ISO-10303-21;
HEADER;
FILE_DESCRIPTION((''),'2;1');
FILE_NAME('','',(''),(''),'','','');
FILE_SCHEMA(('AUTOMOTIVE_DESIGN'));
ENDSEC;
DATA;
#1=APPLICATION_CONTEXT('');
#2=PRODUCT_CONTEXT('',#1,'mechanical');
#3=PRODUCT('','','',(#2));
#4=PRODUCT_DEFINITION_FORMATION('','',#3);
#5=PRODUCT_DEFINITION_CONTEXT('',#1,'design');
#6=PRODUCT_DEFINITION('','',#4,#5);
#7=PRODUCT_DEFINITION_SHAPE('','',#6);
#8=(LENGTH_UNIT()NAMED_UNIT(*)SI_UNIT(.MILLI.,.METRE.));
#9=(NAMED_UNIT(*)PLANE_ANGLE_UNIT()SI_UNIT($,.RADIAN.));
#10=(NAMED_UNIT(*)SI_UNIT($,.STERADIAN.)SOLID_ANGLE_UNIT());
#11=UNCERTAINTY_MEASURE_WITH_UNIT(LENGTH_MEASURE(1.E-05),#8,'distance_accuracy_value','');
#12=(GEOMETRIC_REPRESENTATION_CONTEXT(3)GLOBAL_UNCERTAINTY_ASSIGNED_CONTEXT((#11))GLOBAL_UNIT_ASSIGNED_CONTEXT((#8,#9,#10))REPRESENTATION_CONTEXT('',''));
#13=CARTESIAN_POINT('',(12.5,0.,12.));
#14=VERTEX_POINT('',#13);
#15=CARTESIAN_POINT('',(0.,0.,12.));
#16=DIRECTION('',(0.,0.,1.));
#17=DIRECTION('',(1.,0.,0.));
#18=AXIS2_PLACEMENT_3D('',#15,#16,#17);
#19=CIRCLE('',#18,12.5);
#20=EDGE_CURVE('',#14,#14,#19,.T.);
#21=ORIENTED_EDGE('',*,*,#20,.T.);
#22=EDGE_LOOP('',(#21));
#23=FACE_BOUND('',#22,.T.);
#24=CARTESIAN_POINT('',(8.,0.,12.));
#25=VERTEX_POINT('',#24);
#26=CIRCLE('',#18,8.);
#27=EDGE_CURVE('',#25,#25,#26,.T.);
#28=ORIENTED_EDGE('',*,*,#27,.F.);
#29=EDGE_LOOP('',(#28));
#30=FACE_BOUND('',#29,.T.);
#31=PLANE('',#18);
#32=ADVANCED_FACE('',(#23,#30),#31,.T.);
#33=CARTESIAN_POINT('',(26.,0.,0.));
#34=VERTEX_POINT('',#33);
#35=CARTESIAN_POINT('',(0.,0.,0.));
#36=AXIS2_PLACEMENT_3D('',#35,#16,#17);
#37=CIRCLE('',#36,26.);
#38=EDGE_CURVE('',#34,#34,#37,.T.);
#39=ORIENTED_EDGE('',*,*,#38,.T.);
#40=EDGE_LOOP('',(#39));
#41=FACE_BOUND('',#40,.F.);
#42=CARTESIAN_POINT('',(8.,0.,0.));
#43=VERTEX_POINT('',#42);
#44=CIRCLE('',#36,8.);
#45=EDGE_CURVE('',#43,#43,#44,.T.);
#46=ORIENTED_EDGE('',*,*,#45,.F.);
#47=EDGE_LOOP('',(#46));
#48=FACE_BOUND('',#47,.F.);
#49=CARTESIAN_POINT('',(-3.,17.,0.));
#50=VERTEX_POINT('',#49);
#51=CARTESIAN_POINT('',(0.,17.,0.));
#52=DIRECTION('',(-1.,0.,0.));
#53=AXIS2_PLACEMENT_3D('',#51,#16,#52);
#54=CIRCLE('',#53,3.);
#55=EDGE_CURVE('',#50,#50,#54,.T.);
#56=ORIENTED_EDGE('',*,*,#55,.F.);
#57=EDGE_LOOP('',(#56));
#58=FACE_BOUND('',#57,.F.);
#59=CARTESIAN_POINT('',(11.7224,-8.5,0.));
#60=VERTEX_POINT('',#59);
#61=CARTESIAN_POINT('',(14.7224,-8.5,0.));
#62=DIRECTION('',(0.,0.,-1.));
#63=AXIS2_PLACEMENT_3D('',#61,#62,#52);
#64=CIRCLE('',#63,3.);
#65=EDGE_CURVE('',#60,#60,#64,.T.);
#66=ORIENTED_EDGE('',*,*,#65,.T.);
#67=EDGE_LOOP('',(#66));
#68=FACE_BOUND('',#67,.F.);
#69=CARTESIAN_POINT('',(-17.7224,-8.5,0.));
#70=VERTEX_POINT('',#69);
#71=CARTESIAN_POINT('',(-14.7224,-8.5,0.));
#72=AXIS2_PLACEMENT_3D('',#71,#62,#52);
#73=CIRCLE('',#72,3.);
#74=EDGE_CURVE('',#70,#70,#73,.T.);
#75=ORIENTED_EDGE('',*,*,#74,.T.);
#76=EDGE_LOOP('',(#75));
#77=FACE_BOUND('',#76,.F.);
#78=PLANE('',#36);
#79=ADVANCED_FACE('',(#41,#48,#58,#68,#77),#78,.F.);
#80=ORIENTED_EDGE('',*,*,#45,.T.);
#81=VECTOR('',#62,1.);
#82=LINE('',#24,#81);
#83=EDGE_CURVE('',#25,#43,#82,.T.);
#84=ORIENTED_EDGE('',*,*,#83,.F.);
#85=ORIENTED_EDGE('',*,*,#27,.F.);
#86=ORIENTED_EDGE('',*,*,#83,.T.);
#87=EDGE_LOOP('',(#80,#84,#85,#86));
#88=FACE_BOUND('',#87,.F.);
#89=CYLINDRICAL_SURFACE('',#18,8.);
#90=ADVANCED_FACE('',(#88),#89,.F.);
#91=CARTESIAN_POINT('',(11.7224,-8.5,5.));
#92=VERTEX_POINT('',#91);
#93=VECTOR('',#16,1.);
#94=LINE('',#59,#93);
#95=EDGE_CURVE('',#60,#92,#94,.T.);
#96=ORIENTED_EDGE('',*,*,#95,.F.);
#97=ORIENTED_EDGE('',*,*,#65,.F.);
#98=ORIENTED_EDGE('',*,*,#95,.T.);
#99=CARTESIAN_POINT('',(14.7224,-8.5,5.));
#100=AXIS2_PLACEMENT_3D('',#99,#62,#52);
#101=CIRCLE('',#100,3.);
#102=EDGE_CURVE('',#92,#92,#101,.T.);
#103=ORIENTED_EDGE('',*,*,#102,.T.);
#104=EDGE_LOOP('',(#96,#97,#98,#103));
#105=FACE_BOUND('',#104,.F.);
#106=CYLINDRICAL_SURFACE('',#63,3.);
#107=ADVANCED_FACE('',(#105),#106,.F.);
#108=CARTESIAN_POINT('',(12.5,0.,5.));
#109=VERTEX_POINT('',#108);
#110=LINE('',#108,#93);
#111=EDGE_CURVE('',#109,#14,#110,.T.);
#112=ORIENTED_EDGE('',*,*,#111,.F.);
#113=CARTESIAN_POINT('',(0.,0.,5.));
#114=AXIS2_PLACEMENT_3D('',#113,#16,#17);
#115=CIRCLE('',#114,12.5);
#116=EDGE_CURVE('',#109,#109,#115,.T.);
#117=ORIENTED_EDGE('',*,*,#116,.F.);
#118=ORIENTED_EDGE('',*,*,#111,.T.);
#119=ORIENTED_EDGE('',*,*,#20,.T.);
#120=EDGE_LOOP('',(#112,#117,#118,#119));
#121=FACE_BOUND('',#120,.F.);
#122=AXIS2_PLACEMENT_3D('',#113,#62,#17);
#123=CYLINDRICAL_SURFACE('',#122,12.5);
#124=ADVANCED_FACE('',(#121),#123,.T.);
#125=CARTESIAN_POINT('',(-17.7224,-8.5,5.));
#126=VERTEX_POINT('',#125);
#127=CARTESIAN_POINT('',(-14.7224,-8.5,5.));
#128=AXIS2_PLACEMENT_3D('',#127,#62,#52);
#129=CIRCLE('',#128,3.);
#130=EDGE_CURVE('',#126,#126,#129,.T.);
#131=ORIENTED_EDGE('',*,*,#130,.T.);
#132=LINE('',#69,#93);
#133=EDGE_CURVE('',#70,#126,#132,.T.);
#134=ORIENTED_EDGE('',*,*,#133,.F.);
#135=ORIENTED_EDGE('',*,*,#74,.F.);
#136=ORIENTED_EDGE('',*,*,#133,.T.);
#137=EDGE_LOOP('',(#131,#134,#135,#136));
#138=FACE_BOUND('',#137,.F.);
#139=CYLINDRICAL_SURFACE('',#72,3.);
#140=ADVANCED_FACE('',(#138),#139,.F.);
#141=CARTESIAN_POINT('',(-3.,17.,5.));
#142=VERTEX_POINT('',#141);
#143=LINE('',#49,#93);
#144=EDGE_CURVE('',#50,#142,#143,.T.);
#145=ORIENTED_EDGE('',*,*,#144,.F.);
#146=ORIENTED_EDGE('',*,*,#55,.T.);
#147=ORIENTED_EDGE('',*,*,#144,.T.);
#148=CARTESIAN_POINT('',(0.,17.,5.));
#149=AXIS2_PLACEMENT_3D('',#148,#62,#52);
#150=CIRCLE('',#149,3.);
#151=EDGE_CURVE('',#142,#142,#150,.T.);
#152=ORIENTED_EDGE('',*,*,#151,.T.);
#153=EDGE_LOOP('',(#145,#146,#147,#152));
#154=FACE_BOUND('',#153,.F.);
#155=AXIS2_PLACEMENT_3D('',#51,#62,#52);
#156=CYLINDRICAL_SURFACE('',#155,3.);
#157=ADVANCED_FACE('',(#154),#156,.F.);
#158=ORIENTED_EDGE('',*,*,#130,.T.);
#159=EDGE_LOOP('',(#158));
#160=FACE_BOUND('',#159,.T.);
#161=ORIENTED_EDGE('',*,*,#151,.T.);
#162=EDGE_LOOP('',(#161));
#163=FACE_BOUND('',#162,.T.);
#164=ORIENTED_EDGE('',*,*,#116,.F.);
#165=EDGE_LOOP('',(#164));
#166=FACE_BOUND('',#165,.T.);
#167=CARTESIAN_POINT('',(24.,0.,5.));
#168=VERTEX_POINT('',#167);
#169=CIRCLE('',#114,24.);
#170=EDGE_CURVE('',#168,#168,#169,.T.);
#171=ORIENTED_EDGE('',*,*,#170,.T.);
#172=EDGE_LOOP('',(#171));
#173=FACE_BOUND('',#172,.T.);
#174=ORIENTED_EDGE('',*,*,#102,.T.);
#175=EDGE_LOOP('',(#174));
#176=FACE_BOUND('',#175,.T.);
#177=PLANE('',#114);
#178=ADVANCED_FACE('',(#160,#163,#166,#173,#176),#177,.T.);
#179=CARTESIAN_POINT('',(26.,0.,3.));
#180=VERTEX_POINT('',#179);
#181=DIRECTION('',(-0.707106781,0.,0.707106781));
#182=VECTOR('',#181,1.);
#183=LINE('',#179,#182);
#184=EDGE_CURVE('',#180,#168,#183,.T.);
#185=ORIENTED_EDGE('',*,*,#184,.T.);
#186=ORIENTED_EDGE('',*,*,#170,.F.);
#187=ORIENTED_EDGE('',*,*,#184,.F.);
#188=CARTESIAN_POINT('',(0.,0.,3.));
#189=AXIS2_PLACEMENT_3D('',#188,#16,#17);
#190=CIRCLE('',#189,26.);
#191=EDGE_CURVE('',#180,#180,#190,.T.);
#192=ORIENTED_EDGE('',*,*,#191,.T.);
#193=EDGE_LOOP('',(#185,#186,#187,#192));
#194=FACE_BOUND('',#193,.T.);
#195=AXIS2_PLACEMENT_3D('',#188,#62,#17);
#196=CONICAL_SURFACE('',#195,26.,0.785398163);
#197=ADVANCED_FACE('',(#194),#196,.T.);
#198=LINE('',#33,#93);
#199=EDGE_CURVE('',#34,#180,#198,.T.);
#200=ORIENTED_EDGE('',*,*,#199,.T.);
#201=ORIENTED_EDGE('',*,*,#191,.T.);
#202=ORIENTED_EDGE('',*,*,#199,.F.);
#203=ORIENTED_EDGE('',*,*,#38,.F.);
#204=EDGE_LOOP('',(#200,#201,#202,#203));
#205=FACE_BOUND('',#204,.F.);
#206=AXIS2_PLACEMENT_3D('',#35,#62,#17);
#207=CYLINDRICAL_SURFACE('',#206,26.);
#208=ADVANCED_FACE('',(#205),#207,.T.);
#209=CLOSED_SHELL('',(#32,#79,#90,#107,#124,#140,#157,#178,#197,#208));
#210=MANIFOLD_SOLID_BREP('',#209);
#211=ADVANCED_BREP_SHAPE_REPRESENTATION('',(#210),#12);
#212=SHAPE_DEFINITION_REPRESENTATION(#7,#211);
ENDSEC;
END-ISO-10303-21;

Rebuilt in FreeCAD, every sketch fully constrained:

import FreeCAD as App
import Part
import Sketcher

V = App.Vector


def edges_at(feature, points):
    """Names of the edges that pass closest to the given points."""
    edges = feature.Shape.Edges
    near = lambda p: min(range(len(edges)), key=lambda i: edges[i].distToShape(Part.Vertex(*p))[0])
    return sorted({f"Edge{near(p) + 1}" for p in points})

doc = App.newDocument("Part")
body = doc.addObject("PartDesign::Body", "Body")

# Sketch on XY plane
sketch1 = body.newObject("Sketcher::SketchObject", "Sketch")
sketch1.AttachmentSupport = (doc.getObject("XY_Plane"), [""])
sketch1.MapMode = "FlatFace"
sketch1.addGeometry(Part.Circle(V(0, 0, 0), V(0, 0, 1), 26), False)
sketch1.addConstraint([
    Sketcher.Constraint("Coincident", 0, 3, -1, 1),
    Sketcher.Constraint("Diameter", 0, 52.0),
])
pad1 = body.newObject("PartDesign::Pad", "Pad")
pad1.Profile = sketch1
pad1.Length = 5
doc.recompute()

chamfer = body.newObject("PartDesign::Chamfer", "Chamfer")
chamfer.Base = (pad1, edges_at(pad1, [(-26, 0, 5)]))
chamfer.Size = 2

# Sketch on XY plane
sketch2 = body.newObject("Sketcher::SketchObject", "Sketch001")
sketch2.AttachmentSupport = (doc.getObject("XY_Plane"), [""])
sketch2.MapMode = "FlatFace"
sketch2.AttachmentOffset = App.Placement(V(0, 0, 5), App.Rotation())
sketch2.addGeometry(Part.Circle(V(0, 0, 0), V(0, 0, 1), 12), False)
sketch2.addConstraint([
    Sketcher.Constraint("Coincident", 0, 3, -1, 1),
    Sketcher.Constraint("Diameter", 0, 25.0),
])
pad2 = body.newObject("PartDesign::Pad", "Pad001")
pad2.Profile = sketch2
pad2.Length = 7

# Sketch on XY plane
sketch3 = body.newObject("Sketcher::SketchObject", "Sketch002")
sketch3.AttachmentSupport = (doc.getObject("XY_Plane"), [""])
sketch3.MapMode = "FlatFace"
sketch3.AttachmentOffset = App.Placement(V(0, 0, 12), App.Rotation())
sketch3.addGeometry(Part.Circle(V(0, 0, 0), V(0, 0, 1), 8), False)
sketch3.addConstraint([
    Sketcher.Constraint("Coincident", 0, 3, -1, 1),
    Sketcher.Constraint("Diameter", 0, 16.0),
])
pocket1 = body.newObject("PartDesign::Pocket", "Pocket")
pocket1.Profile = sketch3
pocket1.Length = 12

# Sketch on XY plane
sketch4 = body.newObject("Sketcher::SketchObject", "Sketch003")
sketch4.AttachmentSupport = (doc.getObject("XY_Plane"), [""])
sketch4.MapMode = "FlatFace"
sketch4.addGeometry([
    Part.Circle(V(0, 17, 0), V(0, 0, 1), 3),
    Part.Circle(V(14.7, -8.5, 0), V(0, 0, 1), 3),
    Part.Circle(V(-14.7, -8.5, 0), V(0, 0, 1), 3),
], False)
sketch4.addConstraint([
    Sketcher.Constraint("Equal", 0, 1),
    Sketcher.Constraint("Equal", 1, 2),
    Sketcher.Constraint("Symmetric", 1, 3, 2, 3, -2),
    Sketcher.Constraint("PointOnObject", 0, 3, -2),
    Sketcher.Constraint("Diameter", 0, 6.0),
    Sketcher.Constraint("DistanceY", -1, 1, 0, 3, 17.0),
    Sketcher.Constraint("DistanceY", 1, 3, -1, 1, 8.5),
    Sketcher.Constraint("DistanceX", -1, 1, 1, 3, 14.7224),
])
pocket2 = body.newObject("PartDesign::Pocket", "Pocket001")
pocket2.Profile = sketch4
pocket2.Length = 12
pocket2.Reversed = True

doc.recompute()
